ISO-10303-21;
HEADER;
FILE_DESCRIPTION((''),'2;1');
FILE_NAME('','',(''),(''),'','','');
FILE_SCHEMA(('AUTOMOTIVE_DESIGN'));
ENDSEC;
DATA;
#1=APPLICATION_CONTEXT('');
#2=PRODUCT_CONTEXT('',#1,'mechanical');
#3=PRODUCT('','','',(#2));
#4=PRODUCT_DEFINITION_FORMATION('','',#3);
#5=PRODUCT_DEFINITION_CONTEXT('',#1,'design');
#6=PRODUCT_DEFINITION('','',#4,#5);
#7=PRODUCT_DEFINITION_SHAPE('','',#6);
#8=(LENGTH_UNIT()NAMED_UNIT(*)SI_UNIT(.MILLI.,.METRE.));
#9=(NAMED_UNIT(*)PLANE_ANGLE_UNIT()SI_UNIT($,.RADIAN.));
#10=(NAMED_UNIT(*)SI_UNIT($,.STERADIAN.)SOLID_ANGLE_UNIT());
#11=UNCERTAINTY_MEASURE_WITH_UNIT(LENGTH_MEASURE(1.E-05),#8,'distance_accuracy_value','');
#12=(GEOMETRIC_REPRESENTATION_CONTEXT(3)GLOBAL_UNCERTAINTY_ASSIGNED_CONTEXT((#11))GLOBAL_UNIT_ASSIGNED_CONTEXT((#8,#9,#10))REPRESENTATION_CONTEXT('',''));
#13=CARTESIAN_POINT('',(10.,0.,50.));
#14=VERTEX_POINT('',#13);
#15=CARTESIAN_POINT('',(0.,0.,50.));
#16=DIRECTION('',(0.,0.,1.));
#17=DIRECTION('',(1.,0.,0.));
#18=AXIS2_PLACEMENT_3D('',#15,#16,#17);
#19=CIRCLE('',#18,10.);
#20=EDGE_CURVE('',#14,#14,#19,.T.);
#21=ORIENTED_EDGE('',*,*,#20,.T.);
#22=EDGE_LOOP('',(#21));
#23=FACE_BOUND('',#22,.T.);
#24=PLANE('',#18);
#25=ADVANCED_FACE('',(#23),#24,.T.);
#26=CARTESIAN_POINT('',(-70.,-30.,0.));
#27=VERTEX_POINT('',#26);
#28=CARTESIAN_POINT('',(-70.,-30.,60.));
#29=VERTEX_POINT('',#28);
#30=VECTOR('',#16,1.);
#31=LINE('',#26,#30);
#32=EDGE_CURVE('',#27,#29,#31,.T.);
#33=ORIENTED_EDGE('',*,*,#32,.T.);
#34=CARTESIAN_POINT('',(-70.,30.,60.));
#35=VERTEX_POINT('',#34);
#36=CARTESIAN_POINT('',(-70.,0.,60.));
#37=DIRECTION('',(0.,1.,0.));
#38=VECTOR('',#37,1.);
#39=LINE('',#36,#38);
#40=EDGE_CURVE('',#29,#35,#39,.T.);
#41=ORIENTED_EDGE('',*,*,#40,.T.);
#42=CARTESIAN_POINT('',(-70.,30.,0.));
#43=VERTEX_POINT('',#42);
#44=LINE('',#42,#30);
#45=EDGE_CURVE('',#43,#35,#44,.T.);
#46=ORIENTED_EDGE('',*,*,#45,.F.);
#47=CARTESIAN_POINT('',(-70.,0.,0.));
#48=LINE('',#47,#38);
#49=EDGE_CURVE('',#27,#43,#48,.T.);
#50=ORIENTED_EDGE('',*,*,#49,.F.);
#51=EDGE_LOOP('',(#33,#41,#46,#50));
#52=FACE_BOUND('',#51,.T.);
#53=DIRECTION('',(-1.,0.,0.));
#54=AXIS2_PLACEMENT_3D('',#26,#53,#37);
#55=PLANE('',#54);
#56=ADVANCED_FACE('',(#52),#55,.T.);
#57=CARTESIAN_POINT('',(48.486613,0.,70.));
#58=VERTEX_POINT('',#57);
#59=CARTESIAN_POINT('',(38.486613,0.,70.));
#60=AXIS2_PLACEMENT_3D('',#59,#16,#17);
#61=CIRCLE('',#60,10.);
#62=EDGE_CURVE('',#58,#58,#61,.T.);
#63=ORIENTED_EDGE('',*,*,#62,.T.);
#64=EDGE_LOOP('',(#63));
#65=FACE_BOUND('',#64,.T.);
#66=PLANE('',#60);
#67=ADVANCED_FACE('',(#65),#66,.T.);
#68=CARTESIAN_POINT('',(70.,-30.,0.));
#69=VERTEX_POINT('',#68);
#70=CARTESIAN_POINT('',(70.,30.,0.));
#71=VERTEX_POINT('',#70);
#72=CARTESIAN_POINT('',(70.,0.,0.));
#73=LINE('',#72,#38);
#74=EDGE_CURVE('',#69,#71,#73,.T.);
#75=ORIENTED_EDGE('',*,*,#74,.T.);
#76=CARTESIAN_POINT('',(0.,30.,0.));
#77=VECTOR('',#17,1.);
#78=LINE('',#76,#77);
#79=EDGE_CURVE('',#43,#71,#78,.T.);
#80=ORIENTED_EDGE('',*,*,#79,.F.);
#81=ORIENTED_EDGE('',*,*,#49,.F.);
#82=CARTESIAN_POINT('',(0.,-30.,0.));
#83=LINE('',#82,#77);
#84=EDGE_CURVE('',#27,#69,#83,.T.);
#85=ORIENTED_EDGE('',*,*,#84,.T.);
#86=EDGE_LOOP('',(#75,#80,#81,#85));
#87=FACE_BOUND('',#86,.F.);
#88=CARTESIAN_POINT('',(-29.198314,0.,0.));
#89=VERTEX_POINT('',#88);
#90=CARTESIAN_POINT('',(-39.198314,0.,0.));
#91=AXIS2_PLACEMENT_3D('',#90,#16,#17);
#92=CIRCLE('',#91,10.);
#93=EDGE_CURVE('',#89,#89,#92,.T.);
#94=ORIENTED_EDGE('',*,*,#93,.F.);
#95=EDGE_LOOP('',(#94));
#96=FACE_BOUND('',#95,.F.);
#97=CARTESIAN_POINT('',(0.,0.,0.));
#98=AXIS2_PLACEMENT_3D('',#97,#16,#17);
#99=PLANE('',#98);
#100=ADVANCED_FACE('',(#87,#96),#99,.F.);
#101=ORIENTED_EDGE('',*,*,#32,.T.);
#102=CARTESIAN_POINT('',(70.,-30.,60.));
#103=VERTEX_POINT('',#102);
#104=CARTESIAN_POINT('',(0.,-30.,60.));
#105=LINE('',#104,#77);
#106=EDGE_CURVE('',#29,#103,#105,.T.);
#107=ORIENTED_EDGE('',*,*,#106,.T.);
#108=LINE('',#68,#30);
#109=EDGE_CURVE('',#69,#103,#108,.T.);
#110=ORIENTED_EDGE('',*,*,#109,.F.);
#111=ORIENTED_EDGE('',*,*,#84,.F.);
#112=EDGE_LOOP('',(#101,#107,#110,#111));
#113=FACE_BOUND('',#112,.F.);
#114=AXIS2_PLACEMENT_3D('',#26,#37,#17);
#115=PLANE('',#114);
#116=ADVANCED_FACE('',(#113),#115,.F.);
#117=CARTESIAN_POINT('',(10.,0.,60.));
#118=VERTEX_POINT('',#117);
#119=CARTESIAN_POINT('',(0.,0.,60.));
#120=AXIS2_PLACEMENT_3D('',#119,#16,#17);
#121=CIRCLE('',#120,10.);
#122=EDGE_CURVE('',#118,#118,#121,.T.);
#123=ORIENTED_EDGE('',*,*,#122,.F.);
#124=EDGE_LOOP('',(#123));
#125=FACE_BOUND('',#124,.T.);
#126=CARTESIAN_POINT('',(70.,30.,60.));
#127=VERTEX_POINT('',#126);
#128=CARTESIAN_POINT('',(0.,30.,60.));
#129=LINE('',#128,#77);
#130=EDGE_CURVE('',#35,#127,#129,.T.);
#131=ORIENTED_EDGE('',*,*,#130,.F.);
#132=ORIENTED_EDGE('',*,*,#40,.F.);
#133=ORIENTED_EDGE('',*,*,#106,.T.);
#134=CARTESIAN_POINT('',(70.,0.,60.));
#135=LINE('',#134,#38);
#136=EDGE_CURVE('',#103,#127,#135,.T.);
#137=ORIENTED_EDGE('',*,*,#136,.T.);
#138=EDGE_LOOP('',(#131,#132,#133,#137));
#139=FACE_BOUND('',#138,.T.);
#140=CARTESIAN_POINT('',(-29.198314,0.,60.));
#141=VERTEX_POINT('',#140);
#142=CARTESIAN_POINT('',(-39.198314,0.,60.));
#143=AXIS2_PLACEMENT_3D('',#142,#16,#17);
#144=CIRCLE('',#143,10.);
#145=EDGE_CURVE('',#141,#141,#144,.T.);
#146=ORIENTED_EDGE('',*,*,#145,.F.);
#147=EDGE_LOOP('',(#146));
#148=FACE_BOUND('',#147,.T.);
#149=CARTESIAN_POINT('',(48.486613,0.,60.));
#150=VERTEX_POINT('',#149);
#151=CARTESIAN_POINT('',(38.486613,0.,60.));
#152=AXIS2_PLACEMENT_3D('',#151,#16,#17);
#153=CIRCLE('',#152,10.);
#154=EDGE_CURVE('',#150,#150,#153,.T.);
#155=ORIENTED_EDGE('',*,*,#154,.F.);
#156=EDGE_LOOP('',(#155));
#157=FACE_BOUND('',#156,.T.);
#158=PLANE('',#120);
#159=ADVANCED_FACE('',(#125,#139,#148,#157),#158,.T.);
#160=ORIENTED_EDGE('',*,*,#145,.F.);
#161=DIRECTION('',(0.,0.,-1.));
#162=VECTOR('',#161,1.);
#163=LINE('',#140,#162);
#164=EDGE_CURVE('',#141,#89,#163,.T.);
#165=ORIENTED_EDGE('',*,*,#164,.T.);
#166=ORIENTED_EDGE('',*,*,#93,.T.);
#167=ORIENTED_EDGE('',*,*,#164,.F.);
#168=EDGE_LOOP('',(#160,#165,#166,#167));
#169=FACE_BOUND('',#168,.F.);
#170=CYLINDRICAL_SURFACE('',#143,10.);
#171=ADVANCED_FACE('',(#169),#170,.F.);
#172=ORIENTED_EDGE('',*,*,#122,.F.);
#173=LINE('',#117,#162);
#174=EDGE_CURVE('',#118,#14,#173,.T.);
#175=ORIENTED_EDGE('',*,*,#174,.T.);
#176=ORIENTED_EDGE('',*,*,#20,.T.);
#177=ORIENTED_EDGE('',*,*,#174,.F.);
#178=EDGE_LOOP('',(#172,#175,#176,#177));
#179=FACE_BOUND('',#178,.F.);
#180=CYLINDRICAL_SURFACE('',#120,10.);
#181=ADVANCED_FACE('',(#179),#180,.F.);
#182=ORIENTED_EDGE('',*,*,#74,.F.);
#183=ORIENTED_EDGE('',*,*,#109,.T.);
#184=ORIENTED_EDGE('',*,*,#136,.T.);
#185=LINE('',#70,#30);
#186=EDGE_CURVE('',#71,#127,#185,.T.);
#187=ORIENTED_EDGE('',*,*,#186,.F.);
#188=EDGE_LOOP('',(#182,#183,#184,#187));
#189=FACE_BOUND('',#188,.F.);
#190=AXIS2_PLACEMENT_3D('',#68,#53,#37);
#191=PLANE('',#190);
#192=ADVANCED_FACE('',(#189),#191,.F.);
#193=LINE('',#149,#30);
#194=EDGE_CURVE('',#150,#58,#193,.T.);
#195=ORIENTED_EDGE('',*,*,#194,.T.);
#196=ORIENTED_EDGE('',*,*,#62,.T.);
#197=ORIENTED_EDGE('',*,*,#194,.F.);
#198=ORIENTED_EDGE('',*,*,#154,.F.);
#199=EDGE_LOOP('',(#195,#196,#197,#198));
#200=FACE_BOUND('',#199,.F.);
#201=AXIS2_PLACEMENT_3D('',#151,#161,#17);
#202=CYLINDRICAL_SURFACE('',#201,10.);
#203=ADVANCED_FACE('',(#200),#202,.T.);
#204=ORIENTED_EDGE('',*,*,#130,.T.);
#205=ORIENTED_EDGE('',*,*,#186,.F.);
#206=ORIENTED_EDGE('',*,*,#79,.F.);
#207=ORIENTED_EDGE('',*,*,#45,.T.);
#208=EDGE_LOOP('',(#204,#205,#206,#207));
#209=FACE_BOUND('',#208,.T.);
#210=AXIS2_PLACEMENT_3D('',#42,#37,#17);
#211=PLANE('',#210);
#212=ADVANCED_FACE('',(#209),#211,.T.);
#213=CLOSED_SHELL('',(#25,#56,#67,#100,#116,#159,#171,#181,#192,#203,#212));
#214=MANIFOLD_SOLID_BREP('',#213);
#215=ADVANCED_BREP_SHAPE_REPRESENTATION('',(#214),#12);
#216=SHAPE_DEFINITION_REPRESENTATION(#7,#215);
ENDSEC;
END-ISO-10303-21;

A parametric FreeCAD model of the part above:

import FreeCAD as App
import Part
import Sketcher
from FreeCAD import Vector
Q = App.Units.Quantity

doc = App.newDocument("Part")
params = doc.addObject("Spreadsheet::Sheet", "Params")
for row, (alias, value) in enumerate([
    ("sketch1_width", "140 mm"),
    ("sketch1_height", "60 mm"),
    ("pad1_length", "60 mm"),
    ("sketch2_diameter", "20 mm"),
    ("pocket1_length", "10 mm"),
    ("sketch3_diameter", "20 mm"),
    ("pocket2_length", "77.4 mm"),
    ("sketch4_diameter", "20 mm"),
    ("pad2_length", "10 mm"),
], start=1):
    params.set(f"A{row}", alias)
    params.set(f"B{row}", "=" + value)
    params.setAlias(f"B{row}", alias)

body = doc.addObject("PartDesign::Body", "Body")

sketch1 = body.newObject("Sketcher::SketchObject", "Sketch")
sketch1.AttachmentSupport = (doc.getObject("XY_Plane"), [""])
sketch1.MapMode = "FlatFace"
sketch1.addGeometry([
    Part.LineSegment(Vector(-70, 30, 0), Vector(-70, -30, 0)),
    Part.LineSegment(Vector(-70, -30, 0), Vector(70, -30, 0)),
    Part.LineSegment(Vector(70, -30, 0), Vector(70, 30, 0)),
    Part.LineSegment(Vector(70, 30, 0), Vector(-70, 30, 0)),
], False)
sketch1.addConstraint([
    Sketcher.Constraint("Coincident", 0, 2, 1, 1),
    Sketcher.Constraint("Coincident", 1, 2, 2, 1),
    Sketcher.Constraint("Coincident", 2, 2, 3, 1),
    Sketcher.Constraint("Coincident", 3, 2, 0, 1),
    Sketcher.Constraint("Vertical", 0),
    Sketcher.Constraint("Horizontal", 1),
    Sketcher.Constraint("Vertical", 2),
    Sketcher.Constraint("Horizontal", 3),
    Sketcher.Constraint("Symmetric", 0, 2, 2, 2, -1, 1),
    Sketcher.Constraint("DistanceX", 1, 1, 1, 2, Q("140 mm")),
    Sketcher.Constraint("DistanceY", 0, 2, 0, 1, Q("60 mm")),
])
sketch1.setExpression("Constraints[9]", "Params.sketch1_width")
sketch1.setExpression("Constraints[10]", "Params.sketch1_height")
pad1 = body.newObject("PartDesign::Pad", "Pad")
pad1.Profile = sketch1
pad1.setExpression("Length", "Params.pad1_length")

sketch2 = body.newObject("Sketcher::SketchObject", "Sketch001")
sketch2.AttachmentSupport = (doc.getObject("XY_Plane"), [""])
sketch2.MapMode = "FlatFace"
sketch2.AttachmentOffset = App.Placement(Vector(0, 0, 60), App.Rotation())
sketch2.addGeometry(Part.Circle(Vector(0, 0, 0), Vector(0, 0, 1), 10), False)
sketch2.addConstraint([
    Sketcher.Constraint("Coincident", 0, 3, -1, 1),
    Sketcher.Constraint("Diameter", 0, Q("20 mm")),
])
sketch2.setExpression("Constraints[1]", "Params.sketch2_diameter")
pocket1 = body.newObject("PartDesign::Pocket", "Pocket")
pocket1.Profile = sketch2
pocket1.setExpression("Length", "Params.pocket1_length")

sketch3 = body.newObject("Sketcher::SketchObject", "Sketch002")
sketch3.AttachmentSupport = (doc.getObject("XY_Plane"), [""])
sketch3.MapMode = "FlatFace"
sketch3.AttachmentOffset = App.Placement(Vector(0, 0, 60), App.Rotation())
sketch3.addGeometry(Part.Circle(Vector(-39.198314, 0, 0), Vector(0, 0, 1), 10), False)
sketch3.addConstraint([
    Sketcher.Constraint("PointOnObject", 0, 3, -1),
    Sketcher.Constraint("Diameter", 0, Q("20 mm")),
    Sketcher.Constraint("DistanceX", 0, 3, -1, 1, Q("39.198314 mm")),
])
sketch3.setExpression("Constraints[1]", "Params.sketch3_diameter")
pocket2 = body.newObject("PartDesign::Pocket", "Pocket001")
pocket2.Profile = sketch3
pocket2.setExpression("Length", "Params.pocket2_length")

sketch4 = body.newObject("Sketcher::SketchObject", "Sketch003")
sketch4.AttachmentSupport = (doc.getObject("XY_Plane"), [""])
sketch4.MapMode = "FlatFace"
sketch4.AttachmentOffset = App.Placement(Vector(0, 0, 60), App.Rotation())
sketch4.addGeometry(Part.Circle(Vector(38.486613, 0, 0), Vector(0, 0, 1), 10), False)
sketch4.addConstraint([
    Sketcher.Constraint("PointOnObject", 0, 3, -1),
    Sketcher.Constraint("Diameter", 0, Q("20 mm")),
    Sketcher.Constraint("DistanceX", -1, 1, 0, 3, Q("38.486613 mm")),
])
sketch4.setExpression("Constraints[1]", "Params.sketch4_diameter")
pad2 = body.newObject("PartDesign::Pad", "Pad001")
pad2.Profile = sketch4
pad2.setExpression("Length", "Params.pad2_length")

doc.recompute()
